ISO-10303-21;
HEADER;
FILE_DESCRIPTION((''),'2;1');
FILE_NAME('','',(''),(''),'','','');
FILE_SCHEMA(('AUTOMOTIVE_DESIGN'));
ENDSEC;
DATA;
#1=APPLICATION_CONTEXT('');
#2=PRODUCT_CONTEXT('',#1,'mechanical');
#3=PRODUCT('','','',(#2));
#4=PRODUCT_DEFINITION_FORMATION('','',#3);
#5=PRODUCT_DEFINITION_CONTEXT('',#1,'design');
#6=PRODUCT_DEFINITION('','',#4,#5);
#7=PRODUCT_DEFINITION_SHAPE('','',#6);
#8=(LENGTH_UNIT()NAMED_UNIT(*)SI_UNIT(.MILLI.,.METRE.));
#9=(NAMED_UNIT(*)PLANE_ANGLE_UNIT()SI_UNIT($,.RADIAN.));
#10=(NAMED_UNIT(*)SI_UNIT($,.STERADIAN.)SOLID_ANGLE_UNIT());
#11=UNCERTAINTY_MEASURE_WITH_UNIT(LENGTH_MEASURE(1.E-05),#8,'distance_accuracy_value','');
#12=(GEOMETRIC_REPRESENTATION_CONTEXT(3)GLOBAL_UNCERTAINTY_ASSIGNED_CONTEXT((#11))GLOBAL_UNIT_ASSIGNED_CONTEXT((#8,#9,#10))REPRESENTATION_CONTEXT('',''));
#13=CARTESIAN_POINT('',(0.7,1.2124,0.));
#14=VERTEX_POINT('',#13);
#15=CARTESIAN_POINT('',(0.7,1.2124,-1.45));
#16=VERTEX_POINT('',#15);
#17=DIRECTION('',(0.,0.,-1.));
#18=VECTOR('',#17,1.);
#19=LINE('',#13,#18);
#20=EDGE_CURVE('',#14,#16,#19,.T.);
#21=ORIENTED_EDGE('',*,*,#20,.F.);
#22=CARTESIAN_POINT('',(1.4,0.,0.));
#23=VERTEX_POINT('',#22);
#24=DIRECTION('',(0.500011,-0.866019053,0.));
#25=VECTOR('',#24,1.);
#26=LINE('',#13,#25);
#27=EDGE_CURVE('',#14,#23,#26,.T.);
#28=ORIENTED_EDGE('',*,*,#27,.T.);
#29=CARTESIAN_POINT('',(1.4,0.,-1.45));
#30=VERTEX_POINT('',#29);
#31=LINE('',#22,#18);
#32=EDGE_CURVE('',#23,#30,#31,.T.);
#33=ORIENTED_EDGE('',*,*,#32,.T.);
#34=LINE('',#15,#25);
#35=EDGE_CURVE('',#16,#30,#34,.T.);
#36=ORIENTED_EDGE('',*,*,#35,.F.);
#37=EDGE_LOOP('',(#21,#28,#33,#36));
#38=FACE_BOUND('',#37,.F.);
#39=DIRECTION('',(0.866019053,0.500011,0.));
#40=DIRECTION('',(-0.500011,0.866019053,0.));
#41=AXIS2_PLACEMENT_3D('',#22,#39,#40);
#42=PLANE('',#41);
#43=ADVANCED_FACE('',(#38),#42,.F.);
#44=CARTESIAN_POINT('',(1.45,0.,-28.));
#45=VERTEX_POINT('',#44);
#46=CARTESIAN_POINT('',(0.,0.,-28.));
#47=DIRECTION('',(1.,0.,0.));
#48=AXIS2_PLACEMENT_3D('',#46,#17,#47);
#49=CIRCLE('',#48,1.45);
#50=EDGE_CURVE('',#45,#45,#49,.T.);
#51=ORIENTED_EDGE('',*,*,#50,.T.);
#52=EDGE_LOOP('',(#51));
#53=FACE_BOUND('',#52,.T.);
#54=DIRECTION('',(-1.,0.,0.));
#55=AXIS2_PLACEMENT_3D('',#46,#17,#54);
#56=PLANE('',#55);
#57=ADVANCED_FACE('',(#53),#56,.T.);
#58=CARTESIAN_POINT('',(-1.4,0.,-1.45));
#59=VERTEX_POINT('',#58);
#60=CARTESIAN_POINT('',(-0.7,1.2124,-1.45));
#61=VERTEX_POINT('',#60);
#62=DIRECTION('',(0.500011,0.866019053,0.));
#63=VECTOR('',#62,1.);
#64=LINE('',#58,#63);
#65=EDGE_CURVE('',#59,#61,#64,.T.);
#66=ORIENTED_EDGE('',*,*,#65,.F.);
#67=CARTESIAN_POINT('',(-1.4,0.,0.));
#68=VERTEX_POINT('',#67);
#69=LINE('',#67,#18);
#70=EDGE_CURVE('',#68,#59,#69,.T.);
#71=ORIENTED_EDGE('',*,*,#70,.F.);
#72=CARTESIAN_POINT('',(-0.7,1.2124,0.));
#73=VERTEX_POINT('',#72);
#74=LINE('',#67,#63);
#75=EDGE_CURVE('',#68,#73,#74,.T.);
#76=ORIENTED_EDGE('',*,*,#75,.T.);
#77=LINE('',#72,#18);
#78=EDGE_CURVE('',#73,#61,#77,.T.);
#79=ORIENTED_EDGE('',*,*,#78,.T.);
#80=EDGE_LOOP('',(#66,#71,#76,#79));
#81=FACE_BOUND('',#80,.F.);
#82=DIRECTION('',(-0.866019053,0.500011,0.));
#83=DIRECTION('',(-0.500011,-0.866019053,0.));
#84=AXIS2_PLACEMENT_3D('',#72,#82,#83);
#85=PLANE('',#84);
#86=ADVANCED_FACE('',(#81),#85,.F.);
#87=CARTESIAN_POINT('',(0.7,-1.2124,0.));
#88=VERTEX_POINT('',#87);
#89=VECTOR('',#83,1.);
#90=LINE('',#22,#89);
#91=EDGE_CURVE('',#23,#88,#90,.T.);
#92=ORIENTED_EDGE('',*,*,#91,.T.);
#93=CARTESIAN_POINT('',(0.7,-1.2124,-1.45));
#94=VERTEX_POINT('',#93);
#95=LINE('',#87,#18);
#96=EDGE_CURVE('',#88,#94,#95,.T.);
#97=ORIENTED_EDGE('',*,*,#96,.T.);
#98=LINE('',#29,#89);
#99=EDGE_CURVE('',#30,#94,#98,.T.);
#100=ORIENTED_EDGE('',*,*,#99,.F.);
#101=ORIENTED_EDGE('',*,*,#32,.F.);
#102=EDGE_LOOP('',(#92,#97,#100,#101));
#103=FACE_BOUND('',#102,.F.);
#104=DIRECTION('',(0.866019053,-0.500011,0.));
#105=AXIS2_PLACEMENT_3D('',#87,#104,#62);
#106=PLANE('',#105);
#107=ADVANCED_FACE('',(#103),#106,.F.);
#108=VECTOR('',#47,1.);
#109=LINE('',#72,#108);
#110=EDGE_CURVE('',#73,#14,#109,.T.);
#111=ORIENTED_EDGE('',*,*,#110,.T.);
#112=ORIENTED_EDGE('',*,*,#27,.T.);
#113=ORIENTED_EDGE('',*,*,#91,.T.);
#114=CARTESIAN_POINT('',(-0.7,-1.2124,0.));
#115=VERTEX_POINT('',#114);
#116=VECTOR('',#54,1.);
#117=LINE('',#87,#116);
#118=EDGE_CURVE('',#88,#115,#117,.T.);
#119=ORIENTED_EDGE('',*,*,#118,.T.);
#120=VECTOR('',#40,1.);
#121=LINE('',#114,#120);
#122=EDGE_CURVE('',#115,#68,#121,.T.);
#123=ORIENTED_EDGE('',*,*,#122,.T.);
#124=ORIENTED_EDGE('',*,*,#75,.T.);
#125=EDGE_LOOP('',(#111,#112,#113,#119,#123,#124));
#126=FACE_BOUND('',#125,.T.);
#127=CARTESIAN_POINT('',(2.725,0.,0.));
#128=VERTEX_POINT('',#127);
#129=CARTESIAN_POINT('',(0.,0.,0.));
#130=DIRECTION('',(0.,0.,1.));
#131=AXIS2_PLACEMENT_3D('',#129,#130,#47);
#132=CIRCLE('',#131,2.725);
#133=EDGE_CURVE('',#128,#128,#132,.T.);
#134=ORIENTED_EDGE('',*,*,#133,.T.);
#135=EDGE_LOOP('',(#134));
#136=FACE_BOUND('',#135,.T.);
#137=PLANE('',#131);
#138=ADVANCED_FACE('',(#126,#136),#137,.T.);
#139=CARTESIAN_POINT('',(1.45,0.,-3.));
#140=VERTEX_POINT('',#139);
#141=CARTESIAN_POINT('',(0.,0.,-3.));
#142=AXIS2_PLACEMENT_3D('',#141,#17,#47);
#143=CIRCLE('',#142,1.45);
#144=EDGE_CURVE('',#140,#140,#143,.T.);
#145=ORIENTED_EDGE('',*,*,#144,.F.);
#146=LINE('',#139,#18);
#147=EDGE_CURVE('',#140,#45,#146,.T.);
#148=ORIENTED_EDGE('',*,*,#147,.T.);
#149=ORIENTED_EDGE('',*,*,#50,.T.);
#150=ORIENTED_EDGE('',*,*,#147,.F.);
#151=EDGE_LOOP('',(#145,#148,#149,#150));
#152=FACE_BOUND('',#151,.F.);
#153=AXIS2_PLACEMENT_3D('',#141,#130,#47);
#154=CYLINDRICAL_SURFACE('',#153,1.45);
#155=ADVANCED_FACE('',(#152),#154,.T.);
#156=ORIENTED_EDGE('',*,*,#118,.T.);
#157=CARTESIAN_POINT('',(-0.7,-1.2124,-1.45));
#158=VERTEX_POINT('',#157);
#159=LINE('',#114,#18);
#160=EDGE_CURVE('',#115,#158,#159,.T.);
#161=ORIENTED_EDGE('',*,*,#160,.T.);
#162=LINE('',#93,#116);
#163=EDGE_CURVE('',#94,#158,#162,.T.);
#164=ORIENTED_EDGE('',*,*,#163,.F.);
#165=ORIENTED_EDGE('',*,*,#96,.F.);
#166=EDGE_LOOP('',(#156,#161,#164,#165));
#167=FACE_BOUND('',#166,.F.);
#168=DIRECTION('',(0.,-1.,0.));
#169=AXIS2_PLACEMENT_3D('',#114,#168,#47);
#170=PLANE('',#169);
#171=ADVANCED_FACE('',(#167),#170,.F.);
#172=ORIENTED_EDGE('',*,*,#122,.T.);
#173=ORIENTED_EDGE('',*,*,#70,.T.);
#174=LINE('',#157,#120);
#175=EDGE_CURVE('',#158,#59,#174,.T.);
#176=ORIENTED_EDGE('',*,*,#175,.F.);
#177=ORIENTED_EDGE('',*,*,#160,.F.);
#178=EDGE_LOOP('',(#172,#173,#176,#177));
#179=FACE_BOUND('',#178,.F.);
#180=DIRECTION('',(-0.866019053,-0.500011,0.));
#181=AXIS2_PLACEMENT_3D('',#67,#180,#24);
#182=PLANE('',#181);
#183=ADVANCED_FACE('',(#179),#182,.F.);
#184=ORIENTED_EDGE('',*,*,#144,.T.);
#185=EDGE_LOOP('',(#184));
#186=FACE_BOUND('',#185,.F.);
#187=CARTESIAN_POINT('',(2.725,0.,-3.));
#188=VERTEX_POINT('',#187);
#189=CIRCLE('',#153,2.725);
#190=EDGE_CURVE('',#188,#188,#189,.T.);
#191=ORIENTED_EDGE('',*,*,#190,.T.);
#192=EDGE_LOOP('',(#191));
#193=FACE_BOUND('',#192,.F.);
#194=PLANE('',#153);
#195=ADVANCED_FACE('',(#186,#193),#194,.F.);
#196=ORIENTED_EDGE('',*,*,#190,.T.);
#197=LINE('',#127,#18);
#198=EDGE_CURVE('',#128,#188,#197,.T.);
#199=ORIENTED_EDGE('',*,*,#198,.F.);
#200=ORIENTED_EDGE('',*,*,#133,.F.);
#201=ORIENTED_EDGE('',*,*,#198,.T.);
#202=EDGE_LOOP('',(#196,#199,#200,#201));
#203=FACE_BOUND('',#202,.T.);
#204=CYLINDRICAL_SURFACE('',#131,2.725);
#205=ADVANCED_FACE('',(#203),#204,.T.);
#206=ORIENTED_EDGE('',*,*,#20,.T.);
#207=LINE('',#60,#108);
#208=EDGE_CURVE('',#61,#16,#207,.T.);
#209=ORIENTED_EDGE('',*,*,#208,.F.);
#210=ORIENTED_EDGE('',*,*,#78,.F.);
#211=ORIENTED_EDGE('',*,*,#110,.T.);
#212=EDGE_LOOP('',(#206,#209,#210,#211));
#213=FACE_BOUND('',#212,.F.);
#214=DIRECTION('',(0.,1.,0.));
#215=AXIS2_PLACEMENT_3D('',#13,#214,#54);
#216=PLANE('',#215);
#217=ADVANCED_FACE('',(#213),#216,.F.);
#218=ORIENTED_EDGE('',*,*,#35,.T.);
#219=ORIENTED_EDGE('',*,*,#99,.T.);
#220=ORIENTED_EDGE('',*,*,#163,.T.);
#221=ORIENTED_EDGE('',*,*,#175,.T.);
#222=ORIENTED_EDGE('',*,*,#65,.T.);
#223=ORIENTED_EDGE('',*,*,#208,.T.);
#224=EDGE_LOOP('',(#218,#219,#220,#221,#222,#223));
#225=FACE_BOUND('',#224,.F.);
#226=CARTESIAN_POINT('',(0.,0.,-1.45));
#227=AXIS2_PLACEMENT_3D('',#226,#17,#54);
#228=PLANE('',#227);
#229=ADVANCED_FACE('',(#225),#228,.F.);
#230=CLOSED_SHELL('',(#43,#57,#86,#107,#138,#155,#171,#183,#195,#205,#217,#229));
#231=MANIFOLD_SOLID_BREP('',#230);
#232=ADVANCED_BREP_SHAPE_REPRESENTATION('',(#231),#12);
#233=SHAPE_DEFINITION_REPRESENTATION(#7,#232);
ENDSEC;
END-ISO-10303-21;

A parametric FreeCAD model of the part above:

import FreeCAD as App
import Part
import Sketcher

V = App.Vector
Q = App.Units.Quantity

doc = App.newDocument("Part")
body = doc.addObject("PartDesign::Body", "Body")

# Sketch on XY plane
sketch1 = doc.addObject("Sketcher::SketchObject", "Sketch")
body.addObject(sketch1)
sketch1.AttachmentSupport = (doc.XY_Plane, [""])
sketch1.MapMode = "FlatFace"
sketch1.addGeometry(Part.Circle(V(0, 0, 0), V(0, 0, 1), 2.7), False)
sketch1.addConstraint([
    Sketcher.Constraint("Coincident", 0, 3, -1, 1),
    Sketcher.Constraint("Diameter", 0, 5.45),
])
pad1 = doc.addObject("PartDesign::Pad", "Pad")
body.addObject(pad1)
pad1.Profile = sketch1
pad1.Length = 3
pad1.Reversed = True

# Sketch on XY plane
sketch2 = doc.addObject("Sketcher::SketchObject", "Sketch001")
body.addObject(sketch2)
sketch2.AttachmentSupport = (doc.XY_Plane, [""])
sketch2.MapMode = "FlatFace"
sketch2.addGeometry([
    Part.LineSegment(V(-1.4, 0, 0), V(-0.7, -1.2, 0)),  # 0
    Part.LineSegment(V(-0.7, -1.2, 0), V(0.7, -1.2, 0)),  # 1
    Part.LineSegment(V(0.7, -1.2, 0), V(1.4, 0, 0)),  # 2
    Part.LineSegment(V(1.4, 0, 0), V(0.7, 1.2, 0)),  # 3
    Part.LineSegment(V(0.7, 1.2, 0), V(-0.7, 1.2, 0)),  # 4
    Part.LineSegment(V(-0.7, 1.2, 0), V(-1.4, 0, 0)),  # 5
], False)
sketch2.addConstraint([
    Sketcher.Constraint("Coincident", 0, 2, 1, 1),
    Sketcher.Constraint("Coincident", 1, 2, 2, 1),
    Sketcher.Constraint("Coincident", 2, 2, 3, 1),
    Sketcher.Constraint("Coincident", 3, 2, 4, 1),
    Sketcher.Constraint("Coincident", 4, 2, 5, 1),
    Sketcher.Constraint("Coincident", 5, 2, 0, 1),
    Sketcher.Constraint("Horizontal", 1),
    Sketcher.Constraint("Horizontal", 4),
    Sketcher.Constraint("Symmetric", 0, 2, 3, 2, -1, 1),
    Sketcher.Constraint("Symmetric", 2, 2, 5, 2, -1, 1),
    Sketcher.Constraint("PointOnObject", 2, 2, -1),
    Sketcher.Constraint("Parallel", 2, 5),
    Sketcher.Constraint("Vertical", 1, 2, 3, 2),
    Sketcher.Constraint("Angle", 0, Q("-59.9993 deg")),
    Sketcher.Constraint("DistanceX", 1, 1, 1, 2, 1.4),
    Sketcher.Constraint("Distance", 0, 1.4),
])
pocket1 = doc.addObject("PartDesign::Pocket", "Pocket")
body.addObject(pocket1)
pocket1.Profile = sketch2
pocket1.Length = 1.45

# Sketch on XY plane
sketch3 = doc.addObject("Sketcher::SketchObject", "Sketch002")
body.addObject(sketch3)
sketch3.AttachmentSupport = (doc.XY_Plane, [""])
sketch3.MapMode = "FlatFace"
sketch3.AttachmentOffset = App.Placement(V(0, 0, -3), App.Rotation())
sketch3.addGeometry(Part.Circle(V(0, 0, 0), V(0, 0, 1), 1.4), False)
sketch3.addConstraint([
    Sketcher.Constraint("Coincident", 0, 3, -1, 1),
    Sketcher.Constraint("Diameter", 0, 2.9),
])
pad2 = doc.addObject("PartDesign::Pad", "Pad001")
body.addObject(pad2)
pad2.Profile = sketch3
pad2.Length = 25
pad2.Reversed = True

doc.recompute()
